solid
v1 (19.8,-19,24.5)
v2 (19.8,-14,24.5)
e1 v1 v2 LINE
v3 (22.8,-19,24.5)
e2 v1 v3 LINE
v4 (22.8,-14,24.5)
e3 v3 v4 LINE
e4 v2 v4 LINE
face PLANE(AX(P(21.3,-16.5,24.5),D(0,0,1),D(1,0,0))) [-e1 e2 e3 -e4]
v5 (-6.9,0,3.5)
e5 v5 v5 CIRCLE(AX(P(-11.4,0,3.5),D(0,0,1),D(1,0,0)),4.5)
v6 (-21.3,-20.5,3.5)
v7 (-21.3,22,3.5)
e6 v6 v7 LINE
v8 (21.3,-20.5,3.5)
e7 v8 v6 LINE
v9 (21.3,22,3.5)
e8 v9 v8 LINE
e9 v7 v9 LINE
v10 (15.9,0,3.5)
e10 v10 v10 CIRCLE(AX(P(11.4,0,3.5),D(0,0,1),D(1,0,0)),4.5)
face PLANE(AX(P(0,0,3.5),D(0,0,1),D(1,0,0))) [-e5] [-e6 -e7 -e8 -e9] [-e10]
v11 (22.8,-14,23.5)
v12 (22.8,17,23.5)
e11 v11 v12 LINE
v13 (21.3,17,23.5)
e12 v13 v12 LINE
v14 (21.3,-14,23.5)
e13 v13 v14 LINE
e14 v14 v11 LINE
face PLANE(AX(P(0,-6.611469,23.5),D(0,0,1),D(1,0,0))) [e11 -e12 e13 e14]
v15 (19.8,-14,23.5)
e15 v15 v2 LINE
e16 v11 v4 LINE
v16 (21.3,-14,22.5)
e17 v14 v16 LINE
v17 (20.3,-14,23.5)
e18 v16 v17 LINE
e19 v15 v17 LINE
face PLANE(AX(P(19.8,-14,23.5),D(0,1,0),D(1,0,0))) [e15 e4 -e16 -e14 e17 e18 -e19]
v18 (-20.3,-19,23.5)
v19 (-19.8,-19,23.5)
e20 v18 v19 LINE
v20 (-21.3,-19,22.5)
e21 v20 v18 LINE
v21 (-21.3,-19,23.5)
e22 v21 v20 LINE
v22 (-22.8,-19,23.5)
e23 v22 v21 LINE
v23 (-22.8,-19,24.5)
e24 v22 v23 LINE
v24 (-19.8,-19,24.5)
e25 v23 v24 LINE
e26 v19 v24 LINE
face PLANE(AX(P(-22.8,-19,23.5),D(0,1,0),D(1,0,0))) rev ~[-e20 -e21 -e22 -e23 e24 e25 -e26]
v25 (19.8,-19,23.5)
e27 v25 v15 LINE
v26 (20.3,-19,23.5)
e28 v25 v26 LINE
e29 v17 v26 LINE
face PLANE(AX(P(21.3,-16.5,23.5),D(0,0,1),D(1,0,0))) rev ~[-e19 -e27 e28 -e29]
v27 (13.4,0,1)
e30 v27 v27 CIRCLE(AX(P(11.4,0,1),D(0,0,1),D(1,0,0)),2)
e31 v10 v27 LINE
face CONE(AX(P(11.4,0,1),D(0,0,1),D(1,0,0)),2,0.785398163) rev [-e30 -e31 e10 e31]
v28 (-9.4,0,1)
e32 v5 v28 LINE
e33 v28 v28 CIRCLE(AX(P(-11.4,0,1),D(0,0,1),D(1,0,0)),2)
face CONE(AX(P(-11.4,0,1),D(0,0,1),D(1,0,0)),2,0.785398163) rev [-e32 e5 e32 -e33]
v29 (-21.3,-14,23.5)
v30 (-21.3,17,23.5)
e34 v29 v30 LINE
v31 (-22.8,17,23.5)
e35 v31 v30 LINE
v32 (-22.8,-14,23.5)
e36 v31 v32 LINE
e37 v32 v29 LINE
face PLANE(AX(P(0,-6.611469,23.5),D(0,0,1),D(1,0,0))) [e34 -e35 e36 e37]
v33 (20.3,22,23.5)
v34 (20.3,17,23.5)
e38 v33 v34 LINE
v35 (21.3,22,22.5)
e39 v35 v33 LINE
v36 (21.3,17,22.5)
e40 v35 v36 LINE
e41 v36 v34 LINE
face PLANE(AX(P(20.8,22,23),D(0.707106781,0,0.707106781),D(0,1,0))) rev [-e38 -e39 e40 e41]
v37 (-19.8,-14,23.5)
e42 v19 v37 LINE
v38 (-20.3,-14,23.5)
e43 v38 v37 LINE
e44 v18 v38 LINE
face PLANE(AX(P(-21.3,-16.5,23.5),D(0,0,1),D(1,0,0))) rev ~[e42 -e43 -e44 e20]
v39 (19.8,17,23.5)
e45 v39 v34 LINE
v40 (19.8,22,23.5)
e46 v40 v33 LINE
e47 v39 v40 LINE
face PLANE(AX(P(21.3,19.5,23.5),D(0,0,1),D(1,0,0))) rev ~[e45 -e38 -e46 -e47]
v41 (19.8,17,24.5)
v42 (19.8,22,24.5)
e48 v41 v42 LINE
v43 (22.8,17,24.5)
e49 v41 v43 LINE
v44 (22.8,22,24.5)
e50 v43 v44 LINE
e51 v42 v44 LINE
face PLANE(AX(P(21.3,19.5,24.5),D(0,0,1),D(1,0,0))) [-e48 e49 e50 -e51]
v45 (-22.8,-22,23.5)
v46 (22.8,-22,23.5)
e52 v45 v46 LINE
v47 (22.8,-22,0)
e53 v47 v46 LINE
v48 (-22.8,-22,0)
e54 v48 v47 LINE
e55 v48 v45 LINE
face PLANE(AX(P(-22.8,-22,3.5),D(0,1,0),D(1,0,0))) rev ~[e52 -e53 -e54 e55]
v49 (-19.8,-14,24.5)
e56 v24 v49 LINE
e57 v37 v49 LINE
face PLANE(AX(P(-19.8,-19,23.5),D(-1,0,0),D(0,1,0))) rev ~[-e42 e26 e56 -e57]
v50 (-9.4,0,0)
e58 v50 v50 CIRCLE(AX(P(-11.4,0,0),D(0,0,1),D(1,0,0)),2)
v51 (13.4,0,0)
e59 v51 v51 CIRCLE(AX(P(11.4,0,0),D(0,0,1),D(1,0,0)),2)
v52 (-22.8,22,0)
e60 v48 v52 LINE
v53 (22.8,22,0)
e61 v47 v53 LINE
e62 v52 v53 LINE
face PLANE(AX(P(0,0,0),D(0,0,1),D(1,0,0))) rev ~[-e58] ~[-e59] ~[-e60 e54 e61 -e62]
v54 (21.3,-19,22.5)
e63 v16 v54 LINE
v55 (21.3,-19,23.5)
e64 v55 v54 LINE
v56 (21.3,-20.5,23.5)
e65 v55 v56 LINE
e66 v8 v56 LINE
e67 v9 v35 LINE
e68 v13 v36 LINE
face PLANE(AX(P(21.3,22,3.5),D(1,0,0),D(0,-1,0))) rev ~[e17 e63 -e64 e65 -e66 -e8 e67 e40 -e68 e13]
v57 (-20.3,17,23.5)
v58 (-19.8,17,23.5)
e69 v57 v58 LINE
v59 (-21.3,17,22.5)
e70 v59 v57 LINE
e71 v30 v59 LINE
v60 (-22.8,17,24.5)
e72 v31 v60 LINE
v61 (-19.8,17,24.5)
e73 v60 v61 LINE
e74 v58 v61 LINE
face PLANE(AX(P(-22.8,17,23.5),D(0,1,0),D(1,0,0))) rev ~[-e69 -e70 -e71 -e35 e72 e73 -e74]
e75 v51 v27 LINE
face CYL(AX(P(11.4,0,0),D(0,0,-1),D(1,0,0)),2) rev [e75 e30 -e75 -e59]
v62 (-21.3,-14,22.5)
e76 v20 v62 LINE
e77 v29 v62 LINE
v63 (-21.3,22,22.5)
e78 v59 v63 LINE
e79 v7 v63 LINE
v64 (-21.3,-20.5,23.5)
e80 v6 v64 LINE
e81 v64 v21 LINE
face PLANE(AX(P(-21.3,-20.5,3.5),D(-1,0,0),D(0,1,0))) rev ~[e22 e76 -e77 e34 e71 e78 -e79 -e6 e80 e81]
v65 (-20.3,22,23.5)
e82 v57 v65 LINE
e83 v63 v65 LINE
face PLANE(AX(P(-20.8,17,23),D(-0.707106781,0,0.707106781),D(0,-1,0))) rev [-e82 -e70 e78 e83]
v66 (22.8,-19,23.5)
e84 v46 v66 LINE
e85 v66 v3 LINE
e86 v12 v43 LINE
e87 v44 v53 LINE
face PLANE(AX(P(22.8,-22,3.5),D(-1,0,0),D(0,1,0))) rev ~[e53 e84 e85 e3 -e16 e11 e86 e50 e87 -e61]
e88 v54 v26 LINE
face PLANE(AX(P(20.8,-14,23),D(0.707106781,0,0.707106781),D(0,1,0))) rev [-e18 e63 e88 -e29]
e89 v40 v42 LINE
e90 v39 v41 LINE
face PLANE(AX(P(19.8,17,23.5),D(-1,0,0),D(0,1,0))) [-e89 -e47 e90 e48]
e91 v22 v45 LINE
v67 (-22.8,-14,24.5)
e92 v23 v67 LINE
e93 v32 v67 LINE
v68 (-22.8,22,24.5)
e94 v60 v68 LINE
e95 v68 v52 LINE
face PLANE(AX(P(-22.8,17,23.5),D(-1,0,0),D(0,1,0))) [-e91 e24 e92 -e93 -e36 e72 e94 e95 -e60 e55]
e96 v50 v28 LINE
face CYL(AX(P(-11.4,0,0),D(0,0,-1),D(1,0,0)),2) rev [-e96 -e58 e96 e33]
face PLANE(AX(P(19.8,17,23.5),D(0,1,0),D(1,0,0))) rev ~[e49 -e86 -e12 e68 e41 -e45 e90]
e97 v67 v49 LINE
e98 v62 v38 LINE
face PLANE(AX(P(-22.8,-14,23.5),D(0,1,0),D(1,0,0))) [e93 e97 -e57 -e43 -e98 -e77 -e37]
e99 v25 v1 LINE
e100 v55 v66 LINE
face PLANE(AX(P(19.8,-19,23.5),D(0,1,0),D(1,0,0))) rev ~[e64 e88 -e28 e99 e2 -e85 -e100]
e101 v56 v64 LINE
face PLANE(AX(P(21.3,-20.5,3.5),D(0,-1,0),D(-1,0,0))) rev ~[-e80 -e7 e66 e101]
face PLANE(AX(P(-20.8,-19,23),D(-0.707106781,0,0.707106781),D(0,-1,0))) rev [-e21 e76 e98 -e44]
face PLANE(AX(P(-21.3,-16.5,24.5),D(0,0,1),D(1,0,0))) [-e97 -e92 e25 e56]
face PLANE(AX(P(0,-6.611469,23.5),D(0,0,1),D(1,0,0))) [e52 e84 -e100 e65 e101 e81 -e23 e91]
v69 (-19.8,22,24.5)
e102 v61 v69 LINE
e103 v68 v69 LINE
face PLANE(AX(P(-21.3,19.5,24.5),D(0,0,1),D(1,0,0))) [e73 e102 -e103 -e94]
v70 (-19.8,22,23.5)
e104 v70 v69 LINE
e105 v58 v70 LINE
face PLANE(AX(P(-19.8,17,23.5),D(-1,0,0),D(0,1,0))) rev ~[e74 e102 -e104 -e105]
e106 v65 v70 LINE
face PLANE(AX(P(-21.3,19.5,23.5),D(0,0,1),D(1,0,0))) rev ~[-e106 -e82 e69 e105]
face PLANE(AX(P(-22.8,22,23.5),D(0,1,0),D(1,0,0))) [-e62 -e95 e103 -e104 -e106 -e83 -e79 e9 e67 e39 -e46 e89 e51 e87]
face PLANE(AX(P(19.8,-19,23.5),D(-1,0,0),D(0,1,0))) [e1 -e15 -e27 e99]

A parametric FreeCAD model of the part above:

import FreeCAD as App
import Part
import Sketcher
from FreeCAD import Vector


def edges_at(feature, points):
    """Names of the edges that pass closest to the given points."""
    edges = feature.Shape.Edges
    near = lambda p: min(range(len(edges)), key=lambda i: edges[i].distToShape(Part.Vertex(*p))[0])
    return sorted({f"Edge{near(p) + 1}" for p in points})


def add_polygon(sketch, points):
    """Adds a closed chain of lines whose ends are joined by coincident constraints."""
    first, n = sketch.GeometryCount, len(points)
    for a, b in zip(points, points[1:] + points[:1]):
        sketch.addGeometry(Part.LineSegment(App.Vector(*a, 0), App.Vector(*b, 0)), False)
    for i in range(n):
        sketch.addConstraint(Sketcher.Constraint("Coincident", first + i, 2, first + (i + 1) % n, 1))

doc = App.newDocument("Part")
params = doc.addObject("Spreadsheet::Sheet", "Params")
for row, (alias, value) in enumerate([
    ("sketch1_diameter", "4 mm"),
    ("sketch1_height", "44 mm"),
    ("sketch1_width", "45.6 mm"),
    ("pad1_length", "3.5 mm"),
    ("sketch2_height", "44 mm"),
    ("sketch2_width", "45.6 mm"),
    ("sketch2_width2", "1.5 mm"),
    ("sketch2_height2", "42.5 mm"),
    ("pad2_length", "20 mm"),
    ("sketch3_width", "3 mm"),
    ("sketch3_height", "5 mm"),
    ("pad3_length", "1 mm"),
    ("chamfer_size", "1 mm"),
    ("chamfer2_size", "2.5 mm"),
], start=1):
    params.set(f"A{row}", alias)
    params.set(f"B{row}", "=" + value)
    params.setAlias(f"B{row}", alias)

body = doc.addObject("PartDesign::Body", "Body")

# Sketch on XY plane
sketch1 = body.newObject("Sketcher::SketchObject", "Sketch")
sketch1.AttachmentSupport = (doc.getObject("XY_Plane"), [""])
sketch1.MapMode = "FlatFace"
add_polygon(sketch1, [(-22.8, 22), (-22.8, -22), (22.8, -22), (22.8, 22)])  # lines 0-3
sketch1.addGeometry(Part.Circle(Vector(-11.4, 0, 0), Vector(0, 0, 1), 2), False)  # 4
sketch1.addGeometry(Part.Circle(Vector(11.4, 0, 0), Vector(0, 0, 1), 2), False)  # 5
sketch1.addConstraint([
    Sketcher.Constraint("Vertical", 0),
    Sketcher.Constraint("Horizontal", 1),
    Sketcher.Constraint("Vertical", 2),
    Sketcher.Constraint("Horizontal", 3),
    Sketcher.Constraint("Equal", 4, 5),
    Sketcher.Constraint("Symmetric", 4, 3, 5, 3, -1, 1),
    Sketcher.Constraint("Symmetric", 0, 2, 2, 2, -1, 1),
    Sketcher.Constraint("PointOnObject", 4, 3, -1),
    Sketcher.Constraint("Diameter", 4, 4.0),
    Sketcher.Constraint("DistanceY", 0, 2, 0, 1, 44.0),
    Sketcher.Constraint("DistanceX", 1, 1, 1, 2, 45.6),
    Sketcher.Constraint("DistanceX", 4, 3, -1, 1, 11.4),
])
sketch1.setExpression("Constraints[12]", "Params.sketch1_diameter")
sketch1.setExpression("Constraints[13]", "Params.sketch1_height")
sketch1.setExpression("Constraints[14]", "Params.sketch1_width")
pad1 = body.newObject("PartDesign::Pad", "Pad")
pad1.Profile = sketch1
pad1.setExpression("Length", "Params.pad1_length")

# Sketch on XY plane
sketch2 = body.newObject("Sketcher::SketchObject", "Sketch001")
sketch2.AttachmentSupport = (doc.getObject("XY_Plane"), [""])
sketch2.MapMode = "FlatFace"
sketch2.AttachmentOffset = App.Placement(Vector(0, 0, 3.5), App.Rotation())
add_polygon(sketch2, [(-22.8, 22), (-22.8, -22), (22.8, -22), (22.8, 22), (21.3, 22), (21.3, -20.5), (-21.3, -20.5), (-21.3, 22)])  # lines 0-7
sketch2.addConstraint([
    Sketcher.Constraint("Vertical", 0),
    Sketcher.Constraint("Horizontal", 1),
    Sketcher.Constraint("Vertical", 2),
    Sketcher.Constraint("Horizontal", 3),
    Sketcher.Constraint("Vertical", 4),
    Sketcher.Constraint("Horizontal", 5),
    Sketcher.Constraint("Vertical", 6),
    Sketcher.Constraint("Horizontal", 7),
    Sketcher.Constraint("Symmetric", 0, 2, 2, 2, -1, 1),
    Sketcher.Constraint("Symmetric", 3, 2, 6, 2, -2),
    Sketcher.Constraint("DistanceY", 0, 2, 0, 1, 44.0),
    Sketcher.Constraint("DistanceX", 1, 1, 1, 2, 45.6),
    Sketcher.Constraint("DistanceX", 3, 2, 3, 1, 1.5),
    Sketcher.Constraint("DistanceY", 4, 2, 4, 1, 42.5),
])
sketch2.setExpression("Constraints[18]", "Params.sketch2_height")
sketch2.setExpression("Constraints[19]", "Params.sketch2_width")
sketch2.setExpression("Constraints[20]", "Params.sketch2_width2")
sketch2.setExpression("Constraints[21]", "Params.sketch2_height2")
pad2 = body.newObject("PartDesign::Pad", "Pad001")
pad2.Profile = sketch2
pad2.setExpression("Length", "Params.pad2_length")

# Sketch on XY plane
sketch3 = body.newObject("Sketcher::SketchObject", "Sketch002")
sketch3.AttachmentSupport = (doc.getObject("XY_Plane"), [""])
sketch3.MapMode = "FlatFace"
sketch3.AttachmentOffset = App.Placement(Vector(0, 0, 23.5), App.Rotation())
add_polygon(sketch3, [(-22.8, 22), (-22.8, 17), (-19.8, 17), (-19.8, 22)])  # lines 0-3
add_polygon(sketch3, [(19.8, 22), (19.8, 17), (22.8, 17), (22.8, 22)])  # lines 4-7
add_polygon(sketch3, [(-22.8, -14), (-22.8, -19), (-19.8, -19), (-19.8, -14)])  # lines 8-11
add_polygon(sketch3, [(19.8, -14), (19.8, -19), (22.8, -19), (22.8, -14)])  # lines 12-15
sketch3.addConstraint([
    Sketcher.Constraint("Vertical", 0),
    Sketcher.Constraint("Horizontal", 1),
    Sketcher.Constraint("Vertical", 2),
    Sketcher.Constraint("Horizontal", 3),
    Sketcher.Constraint("Vertical", 4),
    Sketcher.Constraint("Horizontal", 5),
    Sketcher.Constraint("Vertical", 6),
    Sketcher.Constraint("Horizontal", 7),
    Sketcher.Constraint("Vertical", 8),
    Sketcher.Constraint("Horizontal", 9),
    Sketcher.Constraint("Vertical", 10),
    Sketcher.Constraint("Horizontal", 11),
    Sketcher.Constraint("Vertical", 12),
    Sketcher.Constraint("Horizontal", 13),
    Sketcher.Constraint("Vertical", 14),
    Sketcher.Constraint("Horizontal", 15),
    Sketcher.Constraint("Symmetric", 1, 2, 4, 2, -2),
    Sketcher.Constraint("Symmetric", 3, 2, 6, 2, -2),
    Sketcher.Constraint("Symmetric", 9, 2, 12, 2, -2),
    Sketcher.Constraint("Symmetric", 11, 2, 14, 2, -2),
    Sketcher.Constraint("Vertical", 3, 2, 8, 2),
    Sketcher.Constraint("Vertical", 2, 2, 9, 2),
    Sketcher.Constraint("Equal", 6, 8),
    Sketcher.Constraint("DistanceX", 1, 1, 1, 2, 3.0),
    Sketcher.Constraint("DistanceY", 0, 2, 0, 1, 5.0),
    Sketcher.Constraint("DistanceY", -1, 1, 0, 2, 17.0),
    Sketcher.Constraint("DistanceY", 8, 2, -1, 1, 19.0),
    Sketcher.Constraint("DistanceX", 0, 2, -1, 1, 22.8),
])
sketch3.setExpression("Constraints[39]", "Params.sketch3_width")
sketch3.setExpression("Constraints[40]", "Params.sketch3_height")
pad3 = body.newObject("PartDesign::Pad", "Pad002")
pad3.Profile = sketch3
pad3.setExpression("Length", "Params.pad3_length")
doc.recompute()

chamfer = body.newObject("PartDesign::Chamfer", "Chamfer")
chamfer.Base = (pad3, edges_at(pad3, [
    (-21.3, -16.5, 23.5),
    (-21.3, 19.5, 23.5),
    (21.3, -16.5, 23.5),
    (21.3, 19.5, 23.5),
]))
chamfer.setExpression("Size", "Params.chamfer_size")
doc.recompute()

chamfer2 = body.newObject("PartDesign::Chamfer", "Chamfer001")
chamfer2.Base = (chamfer, edges_at(chamfer, [(9.4, 0, 3.5), (-13.4, 0, 3.5)]))
chamfer2.setExpression("Size", "Params.chamfer2_size")

doc.recompute()
